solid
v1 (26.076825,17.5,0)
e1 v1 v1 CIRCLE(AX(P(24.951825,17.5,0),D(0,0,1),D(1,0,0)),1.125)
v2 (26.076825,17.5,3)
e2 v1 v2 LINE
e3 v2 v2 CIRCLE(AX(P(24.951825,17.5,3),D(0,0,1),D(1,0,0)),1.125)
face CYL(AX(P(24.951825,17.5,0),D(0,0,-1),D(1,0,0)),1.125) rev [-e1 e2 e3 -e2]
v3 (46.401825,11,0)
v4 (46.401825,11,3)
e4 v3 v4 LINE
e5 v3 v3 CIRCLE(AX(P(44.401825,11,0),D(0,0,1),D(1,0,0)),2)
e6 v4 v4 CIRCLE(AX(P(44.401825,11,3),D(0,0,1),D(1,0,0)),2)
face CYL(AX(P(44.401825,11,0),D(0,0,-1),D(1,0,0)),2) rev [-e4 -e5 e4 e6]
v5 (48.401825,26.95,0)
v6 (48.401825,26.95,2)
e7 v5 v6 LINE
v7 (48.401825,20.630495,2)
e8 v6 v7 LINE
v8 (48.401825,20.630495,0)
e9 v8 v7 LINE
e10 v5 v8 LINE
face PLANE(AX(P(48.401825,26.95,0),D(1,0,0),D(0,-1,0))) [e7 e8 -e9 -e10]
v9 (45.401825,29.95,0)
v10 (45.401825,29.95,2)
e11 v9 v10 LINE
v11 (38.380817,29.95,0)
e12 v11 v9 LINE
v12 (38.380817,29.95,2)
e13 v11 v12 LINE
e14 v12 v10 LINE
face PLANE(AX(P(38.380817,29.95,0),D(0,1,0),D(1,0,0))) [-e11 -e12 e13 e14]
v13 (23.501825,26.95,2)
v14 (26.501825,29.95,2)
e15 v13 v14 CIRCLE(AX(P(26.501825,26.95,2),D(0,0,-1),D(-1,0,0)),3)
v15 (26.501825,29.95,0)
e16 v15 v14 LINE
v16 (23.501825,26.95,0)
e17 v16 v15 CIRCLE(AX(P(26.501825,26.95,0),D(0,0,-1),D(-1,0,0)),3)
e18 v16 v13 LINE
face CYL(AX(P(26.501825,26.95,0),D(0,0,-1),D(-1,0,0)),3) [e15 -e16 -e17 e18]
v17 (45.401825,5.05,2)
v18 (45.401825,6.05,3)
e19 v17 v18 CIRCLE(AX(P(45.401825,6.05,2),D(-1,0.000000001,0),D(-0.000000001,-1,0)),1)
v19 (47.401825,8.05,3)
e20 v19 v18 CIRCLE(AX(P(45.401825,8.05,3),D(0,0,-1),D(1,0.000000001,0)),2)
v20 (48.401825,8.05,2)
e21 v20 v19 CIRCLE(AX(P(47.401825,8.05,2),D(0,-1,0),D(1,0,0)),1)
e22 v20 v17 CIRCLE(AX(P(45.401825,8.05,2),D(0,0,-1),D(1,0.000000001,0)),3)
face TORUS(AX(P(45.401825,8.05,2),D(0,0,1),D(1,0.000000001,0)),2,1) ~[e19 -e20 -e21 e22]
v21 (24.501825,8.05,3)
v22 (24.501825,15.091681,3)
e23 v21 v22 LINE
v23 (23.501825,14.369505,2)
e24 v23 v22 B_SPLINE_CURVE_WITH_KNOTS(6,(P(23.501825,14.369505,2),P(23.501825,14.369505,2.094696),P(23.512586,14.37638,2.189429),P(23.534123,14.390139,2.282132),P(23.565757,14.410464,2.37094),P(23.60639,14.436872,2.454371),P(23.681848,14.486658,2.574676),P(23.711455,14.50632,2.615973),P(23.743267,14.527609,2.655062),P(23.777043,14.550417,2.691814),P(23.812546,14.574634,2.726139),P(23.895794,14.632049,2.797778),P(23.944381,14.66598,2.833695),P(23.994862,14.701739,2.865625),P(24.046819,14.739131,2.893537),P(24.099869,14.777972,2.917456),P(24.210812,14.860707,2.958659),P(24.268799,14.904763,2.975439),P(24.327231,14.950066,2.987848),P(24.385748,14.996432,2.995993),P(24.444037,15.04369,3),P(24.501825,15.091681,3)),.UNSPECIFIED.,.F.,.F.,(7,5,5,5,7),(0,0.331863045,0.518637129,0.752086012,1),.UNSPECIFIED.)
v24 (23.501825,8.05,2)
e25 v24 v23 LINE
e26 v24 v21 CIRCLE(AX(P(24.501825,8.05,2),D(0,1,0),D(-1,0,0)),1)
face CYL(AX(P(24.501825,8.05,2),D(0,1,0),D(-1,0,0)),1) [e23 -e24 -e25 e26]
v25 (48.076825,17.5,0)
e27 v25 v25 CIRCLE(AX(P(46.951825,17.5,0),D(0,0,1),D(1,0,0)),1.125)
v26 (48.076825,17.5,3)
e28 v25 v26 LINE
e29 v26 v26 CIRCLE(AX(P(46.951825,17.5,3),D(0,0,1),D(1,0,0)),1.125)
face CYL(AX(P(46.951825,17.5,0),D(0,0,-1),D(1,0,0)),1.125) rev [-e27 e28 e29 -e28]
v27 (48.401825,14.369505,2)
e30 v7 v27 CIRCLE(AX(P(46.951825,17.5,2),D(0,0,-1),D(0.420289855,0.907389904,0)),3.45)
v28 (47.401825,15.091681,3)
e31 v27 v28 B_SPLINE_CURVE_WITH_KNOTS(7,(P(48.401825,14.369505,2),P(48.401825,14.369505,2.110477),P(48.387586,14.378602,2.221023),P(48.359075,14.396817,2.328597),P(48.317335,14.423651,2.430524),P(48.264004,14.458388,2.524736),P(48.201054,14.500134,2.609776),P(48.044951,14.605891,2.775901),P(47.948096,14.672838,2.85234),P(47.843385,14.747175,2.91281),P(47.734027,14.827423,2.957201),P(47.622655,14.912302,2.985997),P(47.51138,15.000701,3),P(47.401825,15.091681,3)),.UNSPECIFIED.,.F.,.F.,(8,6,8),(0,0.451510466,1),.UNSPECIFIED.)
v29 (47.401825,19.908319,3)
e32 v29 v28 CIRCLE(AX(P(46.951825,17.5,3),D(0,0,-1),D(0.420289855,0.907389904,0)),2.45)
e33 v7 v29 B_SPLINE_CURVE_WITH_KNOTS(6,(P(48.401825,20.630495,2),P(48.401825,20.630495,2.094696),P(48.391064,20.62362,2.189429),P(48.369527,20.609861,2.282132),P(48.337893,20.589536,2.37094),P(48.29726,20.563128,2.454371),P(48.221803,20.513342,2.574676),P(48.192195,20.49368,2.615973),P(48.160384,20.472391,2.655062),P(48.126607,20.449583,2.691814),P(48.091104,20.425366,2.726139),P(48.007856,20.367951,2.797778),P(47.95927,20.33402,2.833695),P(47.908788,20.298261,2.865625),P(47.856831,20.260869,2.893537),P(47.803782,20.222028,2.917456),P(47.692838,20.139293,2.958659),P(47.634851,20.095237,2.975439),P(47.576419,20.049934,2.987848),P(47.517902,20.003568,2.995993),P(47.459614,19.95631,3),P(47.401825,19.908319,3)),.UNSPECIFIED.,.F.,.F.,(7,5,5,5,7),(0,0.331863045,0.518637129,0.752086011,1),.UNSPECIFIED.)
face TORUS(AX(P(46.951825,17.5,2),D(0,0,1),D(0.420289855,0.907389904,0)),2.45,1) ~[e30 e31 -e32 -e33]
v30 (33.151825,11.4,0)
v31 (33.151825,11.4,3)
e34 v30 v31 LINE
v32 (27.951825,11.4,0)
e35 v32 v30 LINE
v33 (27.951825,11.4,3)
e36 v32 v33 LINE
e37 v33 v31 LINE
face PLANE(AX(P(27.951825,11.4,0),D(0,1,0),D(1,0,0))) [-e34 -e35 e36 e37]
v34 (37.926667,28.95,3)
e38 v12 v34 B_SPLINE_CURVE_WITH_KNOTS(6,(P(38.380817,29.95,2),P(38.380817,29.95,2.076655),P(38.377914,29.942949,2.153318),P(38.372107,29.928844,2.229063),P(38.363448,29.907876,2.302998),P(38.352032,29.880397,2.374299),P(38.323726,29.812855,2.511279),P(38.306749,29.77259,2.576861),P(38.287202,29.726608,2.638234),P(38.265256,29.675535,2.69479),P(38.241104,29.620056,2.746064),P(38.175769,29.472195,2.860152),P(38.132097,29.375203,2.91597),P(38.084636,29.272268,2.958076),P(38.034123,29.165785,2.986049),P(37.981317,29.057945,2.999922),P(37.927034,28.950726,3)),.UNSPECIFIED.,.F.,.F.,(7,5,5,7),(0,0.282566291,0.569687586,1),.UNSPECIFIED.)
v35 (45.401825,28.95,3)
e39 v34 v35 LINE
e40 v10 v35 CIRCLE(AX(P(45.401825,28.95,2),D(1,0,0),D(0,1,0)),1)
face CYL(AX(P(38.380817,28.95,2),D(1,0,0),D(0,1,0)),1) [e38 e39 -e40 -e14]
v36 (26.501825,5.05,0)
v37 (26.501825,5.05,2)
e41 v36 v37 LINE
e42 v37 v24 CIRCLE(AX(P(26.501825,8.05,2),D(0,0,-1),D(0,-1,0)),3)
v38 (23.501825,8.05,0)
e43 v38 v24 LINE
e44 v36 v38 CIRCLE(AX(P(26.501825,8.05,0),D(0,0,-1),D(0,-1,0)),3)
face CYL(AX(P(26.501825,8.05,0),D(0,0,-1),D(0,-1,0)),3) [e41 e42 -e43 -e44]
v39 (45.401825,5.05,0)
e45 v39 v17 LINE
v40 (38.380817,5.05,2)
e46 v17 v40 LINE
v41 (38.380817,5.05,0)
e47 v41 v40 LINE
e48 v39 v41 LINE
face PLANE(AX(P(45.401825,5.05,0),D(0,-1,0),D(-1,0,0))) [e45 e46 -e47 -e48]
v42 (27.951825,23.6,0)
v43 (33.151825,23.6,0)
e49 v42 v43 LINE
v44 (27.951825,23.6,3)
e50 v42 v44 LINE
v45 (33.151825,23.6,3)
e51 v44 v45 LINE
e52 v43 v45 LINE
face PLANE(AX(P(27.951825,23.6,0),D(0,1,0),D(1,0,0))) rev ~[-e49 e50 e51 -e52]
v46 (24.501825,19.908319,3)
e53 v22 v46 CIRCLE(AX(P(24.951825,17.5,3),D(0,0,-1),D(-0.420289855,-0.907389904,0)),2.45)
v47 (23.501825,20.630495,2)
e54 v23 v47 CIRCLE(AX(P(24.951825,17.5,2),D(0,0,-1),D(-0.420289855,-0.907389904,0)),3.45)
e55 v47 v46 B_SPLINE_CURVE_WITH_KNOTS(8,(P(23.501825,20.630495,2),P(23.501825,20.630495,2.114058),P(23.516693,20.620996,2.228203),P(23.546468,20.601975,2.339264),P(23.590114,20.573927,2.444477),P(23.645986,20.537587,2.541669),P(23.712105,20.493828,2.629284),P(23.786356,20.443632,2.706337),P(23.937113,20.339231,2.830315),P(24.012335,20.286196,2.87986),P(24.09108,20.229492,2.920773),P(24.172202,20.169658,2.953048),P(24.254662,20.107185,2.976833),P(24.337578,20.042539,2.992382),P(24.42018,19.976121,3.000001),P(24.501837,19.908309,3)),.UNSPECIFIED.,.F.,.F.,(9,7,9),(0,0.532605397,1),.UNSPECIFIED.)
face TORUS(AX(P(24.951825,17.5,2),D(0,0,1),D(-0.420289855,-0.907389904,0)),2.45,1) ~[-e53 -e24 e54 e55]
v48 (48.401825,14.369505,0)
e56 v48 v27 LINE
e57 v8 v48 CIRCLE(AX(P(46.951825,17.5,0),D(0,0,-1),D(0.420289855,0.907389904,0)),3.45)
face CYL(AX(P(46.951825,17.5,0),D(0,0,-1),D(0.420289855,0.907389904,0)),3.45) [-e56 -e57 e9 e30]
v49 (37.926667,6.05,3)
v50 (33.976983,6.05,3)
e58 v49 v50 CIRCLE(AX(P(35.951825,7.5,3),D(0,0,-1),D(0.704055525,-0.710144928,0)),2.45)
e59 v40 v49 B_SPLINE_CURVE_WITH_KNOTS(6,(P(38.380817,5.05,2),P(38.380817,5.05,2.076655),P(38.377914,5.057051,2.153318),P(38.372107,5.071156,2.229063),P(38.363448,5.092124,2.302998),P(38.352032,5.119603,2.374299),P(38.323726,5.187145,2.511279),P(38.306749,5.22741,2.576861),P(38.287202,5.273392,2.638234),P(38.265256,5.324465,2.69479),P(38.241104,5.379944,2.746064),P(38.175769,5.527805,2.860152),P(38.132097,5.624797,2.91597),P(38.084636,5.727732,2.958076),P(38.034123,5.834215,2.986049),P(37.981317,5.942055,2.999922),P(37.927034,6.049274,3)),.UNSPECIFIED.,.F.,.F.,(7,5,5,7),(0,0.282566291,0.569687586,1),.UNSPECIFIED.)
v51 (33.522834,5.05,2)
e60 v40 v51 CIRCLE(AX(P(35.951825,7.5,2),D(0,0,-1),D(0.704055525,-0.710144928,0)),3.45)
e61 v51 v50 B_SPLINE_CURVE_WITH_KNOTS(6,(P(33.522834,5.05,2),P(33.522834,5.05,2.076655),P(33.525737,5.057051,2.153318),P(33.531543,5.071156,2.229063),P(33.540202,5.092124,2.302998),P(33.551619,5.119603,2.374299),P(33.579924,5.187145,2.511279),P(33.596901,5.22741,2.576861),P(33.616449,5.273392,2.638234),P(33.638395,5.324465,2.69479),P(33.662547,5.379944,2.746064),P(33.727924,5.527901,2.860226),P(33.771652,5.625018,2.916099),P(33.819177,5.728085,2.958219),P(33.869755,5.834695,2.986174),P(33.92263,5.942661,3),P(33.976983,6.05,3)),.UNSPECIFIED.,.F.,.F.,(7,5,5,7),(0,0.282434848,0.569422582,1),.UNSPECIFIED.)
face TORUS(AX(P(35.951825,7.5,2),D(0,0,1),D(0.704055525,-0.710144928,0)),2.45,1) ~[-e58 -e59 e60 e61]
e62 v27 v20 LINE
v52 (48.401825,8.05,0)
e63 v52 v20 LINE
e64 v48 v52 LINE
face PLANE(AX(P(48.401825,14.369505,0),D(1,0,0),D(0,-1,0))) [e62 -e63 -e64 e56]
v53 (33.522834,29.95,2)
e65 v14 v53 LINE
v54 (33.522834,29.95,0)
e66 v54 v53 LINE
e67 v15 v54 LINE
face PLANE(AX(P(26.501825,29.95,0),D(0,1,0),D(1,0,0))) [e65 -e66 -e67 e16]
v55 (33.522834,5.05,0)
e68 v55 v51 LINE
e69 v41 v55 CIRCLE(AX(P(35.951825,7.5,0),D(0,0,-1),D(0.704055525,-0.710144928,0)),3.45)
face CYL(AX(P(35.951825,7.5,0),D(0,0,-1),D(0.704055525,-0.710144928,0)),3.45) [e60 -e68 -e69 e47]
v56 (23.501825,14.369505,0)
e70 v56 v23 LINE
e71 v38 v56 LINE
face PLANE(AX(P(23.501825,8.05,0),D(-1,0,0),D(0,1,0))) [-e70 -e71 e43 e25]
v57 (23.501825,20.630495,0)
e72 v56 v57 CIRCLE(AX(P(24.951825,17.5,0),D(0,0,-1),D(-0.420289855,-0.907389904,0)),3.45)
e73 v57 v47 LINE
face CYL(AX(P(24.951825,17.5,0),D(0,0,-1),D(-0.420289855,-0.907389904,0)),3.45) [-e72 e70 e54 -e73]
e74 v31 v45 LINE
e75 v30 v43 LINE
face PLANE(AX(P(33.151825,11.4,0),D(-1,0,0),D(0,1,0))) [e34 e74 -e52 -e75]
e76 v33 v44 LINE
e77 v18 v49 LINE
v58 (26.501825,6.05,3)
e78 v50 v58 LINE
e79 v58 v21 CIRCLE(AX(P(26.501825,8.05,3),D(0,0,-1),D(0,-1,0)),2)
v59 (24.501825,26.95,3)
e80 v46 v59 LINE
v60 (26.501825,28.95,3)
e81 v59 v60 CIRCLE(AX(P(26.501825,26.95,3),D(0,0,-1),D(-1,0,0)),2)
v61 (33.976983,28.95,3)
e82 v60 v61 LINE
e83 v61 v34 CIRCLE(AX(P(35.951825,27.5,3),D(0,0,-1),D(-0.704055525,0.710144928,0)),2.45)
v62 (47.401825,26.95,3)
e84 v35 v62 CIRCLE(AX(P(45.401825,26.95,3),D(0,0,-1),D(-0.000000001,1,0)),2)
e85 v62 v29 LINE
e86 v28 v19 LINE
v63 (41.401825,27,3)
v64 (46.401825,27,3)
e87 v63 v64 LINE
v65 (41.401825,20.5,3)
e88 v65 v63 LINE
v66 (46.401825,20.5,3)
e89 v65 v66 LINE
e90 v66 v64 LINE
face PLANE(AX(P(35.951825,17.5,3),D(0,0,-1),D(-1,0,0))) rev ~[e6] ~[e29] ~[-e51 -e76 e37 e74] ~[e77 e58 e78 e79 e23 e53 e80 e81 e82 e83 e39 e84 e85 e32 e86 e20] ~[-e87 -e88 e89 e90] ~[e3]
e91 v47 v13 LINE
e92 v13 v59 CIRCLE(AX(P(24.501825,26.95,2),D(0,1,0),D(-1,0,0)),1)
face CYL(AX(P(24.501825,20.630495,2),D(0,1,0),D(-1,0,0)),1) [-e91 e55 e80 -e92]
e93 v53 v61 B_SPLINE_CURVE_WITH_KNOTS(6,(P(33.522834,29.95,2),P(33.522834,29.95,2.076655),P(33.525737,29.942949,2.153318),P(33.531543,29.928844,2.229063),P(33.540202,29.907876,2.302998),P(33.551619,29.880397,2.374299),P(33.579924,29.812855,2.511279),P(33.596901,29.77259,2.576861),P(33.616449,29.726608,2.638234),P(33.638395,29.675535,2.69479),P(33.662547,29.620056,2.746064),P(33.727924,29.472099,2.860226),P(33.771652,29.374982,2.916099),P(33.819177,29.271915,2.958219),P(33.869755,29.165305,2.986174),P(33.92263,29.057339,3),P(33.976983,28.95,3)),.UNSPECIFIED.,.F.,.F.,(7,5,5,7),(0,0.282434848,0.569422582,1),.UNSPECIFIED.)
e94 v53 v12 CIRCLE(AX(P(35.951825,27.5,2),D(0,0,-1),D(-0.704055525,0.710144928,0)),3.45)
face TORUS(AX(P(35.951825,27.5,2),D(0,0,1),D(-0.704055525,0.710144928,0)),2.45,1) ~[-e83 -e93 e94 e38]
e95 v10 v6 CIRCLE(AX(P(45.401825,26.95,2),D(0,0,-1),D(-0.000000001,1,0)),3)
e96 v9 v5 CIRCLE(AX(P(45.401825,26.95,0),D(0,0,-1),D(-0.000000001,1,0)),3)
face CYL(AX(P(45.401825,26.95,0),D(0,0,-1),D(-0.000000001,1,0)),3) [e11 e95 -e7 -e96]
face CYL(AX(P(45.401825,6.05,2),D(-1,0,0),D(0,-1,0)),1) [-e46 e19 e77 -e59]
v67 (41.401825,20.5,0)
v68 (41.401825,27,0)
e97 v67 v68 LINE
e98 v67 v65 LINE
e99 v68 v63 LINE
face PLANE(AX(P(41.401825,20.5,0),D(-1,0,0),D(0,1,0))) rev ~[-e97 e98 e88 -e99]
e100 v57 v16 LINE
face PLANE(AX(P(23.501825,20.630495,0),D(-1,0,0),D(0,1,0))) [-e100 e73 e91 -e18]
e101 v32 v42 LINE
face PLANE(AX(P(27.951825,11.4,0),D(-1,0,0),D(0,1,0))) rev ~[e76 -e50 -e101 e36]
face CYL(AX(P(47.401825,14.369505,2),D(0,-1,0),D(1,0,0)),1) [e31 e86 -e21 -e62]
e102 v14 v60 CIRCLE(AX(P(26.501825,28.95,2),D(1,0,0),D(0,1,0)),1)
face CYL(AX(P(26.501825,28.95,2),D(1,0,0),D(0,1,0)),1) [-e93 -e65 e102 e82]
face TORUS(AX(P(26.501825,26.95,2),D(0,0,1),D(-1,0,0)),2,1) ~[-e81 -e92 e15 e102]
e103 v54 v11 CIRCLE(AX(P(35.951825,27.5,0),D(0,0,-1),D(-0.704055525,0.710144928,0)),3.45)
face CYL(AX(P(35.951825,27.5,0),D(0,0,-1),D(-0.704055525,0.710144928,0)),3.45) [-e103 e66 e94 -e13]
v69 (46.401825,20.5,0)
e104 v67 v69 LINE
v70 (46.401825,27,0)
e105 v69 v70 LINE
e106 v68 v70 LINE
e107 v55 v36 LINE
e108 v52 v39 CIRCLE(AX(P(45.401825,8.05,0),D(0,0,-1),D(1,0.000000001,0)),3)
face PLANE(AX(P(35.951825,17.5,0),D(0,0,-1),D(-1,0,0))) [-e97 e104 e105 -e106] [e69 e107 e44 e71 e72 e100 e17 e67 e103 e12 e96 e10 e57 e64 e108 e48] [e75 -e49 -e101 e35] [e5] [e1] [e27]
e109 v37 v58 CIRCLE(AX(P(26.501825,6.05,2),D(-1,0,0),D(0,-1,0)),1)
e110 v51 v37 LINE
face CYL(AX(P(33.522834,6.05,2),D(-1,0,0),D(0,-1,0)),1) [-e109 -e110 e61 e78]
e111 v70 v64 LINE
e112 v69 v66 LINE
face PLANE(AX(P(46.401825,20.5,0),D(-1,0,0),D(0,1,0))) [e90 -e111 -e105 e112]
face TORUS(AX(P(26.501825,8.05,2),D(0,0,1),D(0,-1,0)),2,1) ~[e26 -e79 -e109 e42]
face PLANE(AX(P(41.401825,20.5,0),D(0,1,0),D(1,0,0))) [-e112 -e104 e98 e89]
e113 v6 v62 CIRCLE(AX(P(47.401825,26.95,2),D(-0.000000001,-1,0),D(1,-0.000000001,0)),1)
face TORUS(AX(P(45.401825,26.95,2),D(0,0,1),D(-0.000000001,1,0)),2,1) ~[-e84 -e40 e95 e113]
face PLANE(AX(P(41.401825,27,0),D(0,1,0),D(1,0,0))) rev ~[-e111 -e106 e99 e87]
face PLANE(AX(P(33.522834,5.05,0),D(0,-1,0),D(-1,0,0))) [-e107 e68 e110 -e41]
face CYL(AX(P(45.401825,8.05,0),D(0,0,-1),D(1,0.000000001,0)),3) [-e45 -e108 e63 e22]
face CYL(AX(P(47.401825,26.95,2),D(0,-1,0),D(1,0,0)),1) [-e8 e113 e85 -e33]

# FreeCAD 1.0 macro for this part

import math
import FreeCAD as App
import Part
import Sketcher
Q = App.Units.Quantity


def edges_at(feature, points):
    """Names of the edges that pass closest to the given points."""
    edges = feature.Shape.Edges
    near = lambda p: min(range(len(edges)), key=lambda i: edges[i].distToShape(Part.Vertex(*p))[0])
    return sorted({f"Edge{near(p) + 1}" for p in points})

doc = App.newDocument("Part")
body = doc.addObject("PartDesign::Body", "Body")

# Sketch on XY plane
sketch1 = body.newObject("Sketcher::SketchObject", "Sketch")
sketch1.AttachmentSupport = (doc.getObject("XY_Plane"), [""])
sketch1.MapMode = "FlatFace"
sketch1.addGeometry([
    Part.LineSegment(App.Vector(23.501825, 14.369505, 0), App.Vector(23.501825, 8.05, 0)),  # 0
    Part.ArcOfCircle(Part.Circle(App.Vector(26.501825, 8.05, 0), App.Vector(0, 0, 1), 3), math.radians(180), math.radians(270)),  # 1
    Part.LineSegment(App.Vector(26.501825, 5.05, 0), App.Vector(33.522834, 5.05, 0)),  # 2
    Part.ArcOfCircle(Part.Circle(App.Vector(35.951825, 7.5, 0), App.Vector(0, 0, 1), 3.45), math.radians(-134.753292), math.radians(-45.246708)),  # 3
    Part.LineSegment(App.Vector(38.380817, 5.05, 0), App.Vector(45.401825, 5.05, 0)),  # 4
    Part.ArcOfCircle(Part.Circle(App.Vector(45.401825, 8.05, 0), App.Vector(0, 0, 1), 3), math.radians(-90), math.radians(0)),  # 5
    Part.LineSegment(App.Vector(48.401825, 8.05, 0), App.Vector(48.401825, 14.369505, 0)),  # 6
    Part.ArcOfCircle(Part.Circle(App.Vector(46.951825, 17.5, 0), App.Vector(0, 0, 1), 3.45), math.radians(-65.147111), math.radians(65.147111)),  # 7
    Part.LineSegment(App.Vector(48.401825, 20.630495, 0), App.Vector(48.401825, 26.95, 0)),  # 8
    Part.ArcOfCircle(Part.Circle(App.Vector(45.401825, 26.95, 0), App.Vector(0, 0, 1), 3), math.radians(0), math.radians(90)),  # 9
    Part.LineSegment(App.Vector(45.401825, 29.95, 0), App.Vector(38.380817, 29.95, 0)),  # 10
    Part.ArcOfCircle(Part.Circle(App.Vector(35.951825, 27.5, 0), App.Vector(0, 0, 1), 3.45), math.radians(45.246708), math.radians(134.753292)),  # 11
    Part.LineSegment(App.Vector(33.522834, 29.95, 0), App.Vector(26.501825, 29.95, 0)),  # 12
    Part.ArcOfCircle(Part.Circle(App.Vector(26.501825, 26.95, 0), App.Vector(0, 0, 1), 3), math.radians(90), math.radians(180)),  # 13
    Part.LineSegment(App.Vector(23.501825, 26.95, 0), App.Vector(23.501825, 20.630495, 0)),  # 14
    Part.ArcOfCircle(Part.Circle(App.Vector(24.951825, 17.5, 0), App.Vector(0, 0, 1), 3.45), math.radians(114.852889), math.radians(245.147111)),  # 15
    Part.Circle(App.Vector(44.401825, 11, 0), App.Vector(0, 0, 1), 2),  # 16
    Part.Circle(App.Vector(46.951825, 17.5, 0), App.Vector(0, 0, 1), 1.125),  # 17
    Part.LineSegment(App.Vector(27.951825, 11.4, 0), App.Vector(27.951825, 23.6, 0)),  # 18
    Part.LineSegment(App.Vector(27.951825, 23.6, 0), App.Vector(33.151825, 23.6, 0)),  # 19
    Part.LineSegment(App.Vector(33.151825, 23.6, 0), App.Vector(33.151825, 11.4, 0)),  # 20
    Part.LineSegment(App.Vector(33.151825, 11.4, 0), App.Vector(27.951825, 11.4, 0)),  # 21
    Part.Circle(App.Vector(24.951825, 17.5, 0), App.Vector(0, 0, 1), 1.125),  # 22
    Part.LineSegment(App.Vector(41.401825, 20.5, 0), App.Vector(41.401825, 27, 0)),  # 23
    Part.LineSegment(App.Vector(41.401825, 27, 0), App.Vector(46.401825, 27, 0)),  # 24
    Part.LineSegment(App.Vector(46.401825, 27, 0), App.Vector(46.401825, 20.5, 0)),  # 25
    Part.LineSegment(App.Vector(46.401825, 20.5, 0), App.Vector(41.401825, 20.5, 0)),  # 26
], False)
sketch1.addConstraint([
    Sketcher.Constraint("Tangent", 0, 2, 1, 1),
    Sketcher.Constraint("Tangent", 1, 2, 2, 1),
    Sketcher.Constraint("Coincident", 2, 2, 3, 1),
    Sketcher.Constraint("Coincident", 3, 2, 4, 1),
    Sketcher.Constraint("Tangent", 4, 2, 5, 1),
    Sketcher.Constraint("Tangent", 5, 2, 6, 1),
    Sketcher.Constraint("Coincident", 6, 2, 7, 1),
    Sketcher.Constraint("Coincident", 7, 2, 8, 1),
    Sketcher.Constraint("Tangent", 8, 2, 9, 1),
    Sketcher.Constraint("Tangent", 9, 2, 10, 1),
    Sketcher.Constraint("Coincident", 10, 2, 11, 1),
    Sketcher.Constraint("Coincident", 11, 2, 12, 1),
    Sketcher.Constraint("Tangent", 12, 2, 13, 1),
    Sketcher.Constraint("Tangent", 13, 2, 14, 1),
    Sketcher.Constraint("Coincident", 14, 2, 15, 1),
    Sketcher.Constraint("Coincident", 15, 2, 0, 1),
    Sketcher.Constraint("Coincident", 18, 2, 19, 1),
    Sketcher.Constraint("Coincident", 19, 2, 20, 1),
    Sketcher.Constraint("Coincident", 20, 2, 21, 1),
    Sketcher.Constraint("Coincident", 21, 2, 18, 1),
    Sketcher.Constraint("Coincident", 23, 2, 24, 1),
    Sketcher.Constraint("Coincident", 24, 2, 25, 1),
    Sketcher.Constraint("Coincident", 25, 2, 26, 1),
    Sketcher.Constraint("Coincident", 26, 2, 23, 1),
    Sketcher.Constraint("Vertical", 0),
    Sketcher.Constraint("Horizontal", 2),
    Sketcher.Constraint("Horizontal", 4),
    Sketcher.Constraint("Vertical", 6),
    Sketcher.Constraint("Vertical", 8),
    Sketcher.Constraint("Horizontal", 10),
    Sketcher.Constraint("Horizontal", 12),
    Sketcher.Constraint("Vertical", 14),
    Sketcher.Constraint("Vertical", 18),
    Sketcher.Constraint("Horizontal", 19),
    Sketcher.Constraint("Vertical", 20),
    Sketcher.Constraint("Horizontal", 21),
    Sketcher.Constraint("Vertical", 23),
    Sketcher.Constraint("Horizontal", 24),
    Sketcher.Constraint("Vertical", 25),
    Sketcher.Constraint("Horizontal", 26),
    Sketcher.Constraint("Coincident", 17, 3, 7, 3),
    Sketcher.Constraint("Coincident", 22, 3, 15, 3),
    Sketcher.Constraint("Equal", 1, 5),
    Sketcher.Constraint("Equal", 3, 7),
    Sketcher.Constraint("Equal", 5, 9),
    Sketcher.Constraint("Equal", 7, 11),
    Sketcher.Constraint("Equal", 9, 13),
    Sketcher.Constraint("Equal", 11, 15),
    Sketcher.Constraint("Equal", 17, 22),
    Sketcher.Constraint("Horizontal", 1, 3, 5, 3),
    Sketcher.Constraint("Horizontal", 9, 3, 13, 3),
    Sketcher.Constraint("Horizontal", 7, 3, 15, 3),
    Sketcher.Constraint("Horizontal", 7, 2, 14, 2),
    Sketcher.Constraint("Horizontal", 6, 2, 15, 2),
    Sketcher.Constraint("Vertical", 5, 3, 9, 3),
    Sketcher.Constraint("Vertical", 3, 3, 11, 3),
    Sketcher.Constraint("Vertical", 3, 2, 10, 2),
    Sketcher.Constraint("Equal", 2, 4),
    Sketcher.Constraint("Equal", 6, 8),
    Sketcher.Constraint("Diameter", 16, Q("4 mm")),
    Sketcher.Constraint("Radius", 1, Q("3 mm")),
    Sketcher.Constraint("Diameter", 17, Q("2.25 mm")),
    Sketcher.Constraint("DistanceX", 24, 1, 24, 2, Q("5 mm")),
    Sketcher.Constraint("Radius", 3, Q("3.45 mm")),
    Sketcher.Constraint("DistanceX", 19, 1, 19, 2, Q("5.2 mm")),
    Sketcher.Constraint("DistanceY", 18, 1, 18, 2, Q("12.2 mm")),
    Sketcher.Constraint("DistanceY", 23, 1, 23, 2, Q("6.5 mm")),
    Sketcher.Constraint("DistanceY", -1, 1, 16, 3, Q("11 mm")),
    Sketcher.Constraint("DistanceY", -1, 1, 23, 2, Q("27 mm")),
    Sketcher.Constraint("DistanceX", 3, 3, 7, 3, Q("11 mm")),
    Sketcher.Constraint("DistanceY", 3, 3, 7, 3, Q("10 mm")),
    Sketcher.Constraint("DistanceX", 16, 3, 5, 3, Q("1 mm")),
    Sketcher.Constraint("DistanceX", 22, 3, 18, 2, Q("3 mm")),
    Sketcher.Constraint("DistanceX", 23, 2, 9, 3, Q("4 mm")),
    Sketcher.Constraint("DistanceY", 17, 3, 25, 2, Q("3 mm")),
    Sketcher.Constraint("DistanceY", -1, 1, 18, 2, Q("23.6 mm")),
    Sketcher.Constraint("DistanceX", 1, 3, 5, 3, Q("18.9 mm")),
    Sketcher.Constraint("DistanceY", 5, 3, 9, 3, Q("18.9 mm")),
    Sketcher.Constraint("DistanceX", -1, 1, 1, 3, Q("26.501825 mm")),
])
pad1 = body.newObject("PartDesign::Pad", "Pad")
pad1.Profile = sketch1
pad1.Length = 3
doc.recompute()

fillet = body.newObject("PartDesign::Fillet", "Fillet")
fillet.Base = (pad1, edges_at(pad1, [
    (35.952, 4.05, 3),
    (41.891, 5.05, 3),
    (47.523, 5.929, 3),
    (48.402, 11.21, 3),
    (50.402, 17.5, 3),
    (48.402, 23.79, 3),
    (47.523, 29.071, 3),
    (41.891, 29.95, 3),
    (35.952, 30.95, 3),
    (30.012, 29.95, 3),
    (24.381, 5.929, 3),
    (24.381, 29.071, 3),
    (23.502, 23.79, 3),
    (21.502, 17.5, 3),
    (23.502, 11.21, 3),
    (30.012, 5.05, 3),
]))
fillet.Radius = 1

doc.recompute()
